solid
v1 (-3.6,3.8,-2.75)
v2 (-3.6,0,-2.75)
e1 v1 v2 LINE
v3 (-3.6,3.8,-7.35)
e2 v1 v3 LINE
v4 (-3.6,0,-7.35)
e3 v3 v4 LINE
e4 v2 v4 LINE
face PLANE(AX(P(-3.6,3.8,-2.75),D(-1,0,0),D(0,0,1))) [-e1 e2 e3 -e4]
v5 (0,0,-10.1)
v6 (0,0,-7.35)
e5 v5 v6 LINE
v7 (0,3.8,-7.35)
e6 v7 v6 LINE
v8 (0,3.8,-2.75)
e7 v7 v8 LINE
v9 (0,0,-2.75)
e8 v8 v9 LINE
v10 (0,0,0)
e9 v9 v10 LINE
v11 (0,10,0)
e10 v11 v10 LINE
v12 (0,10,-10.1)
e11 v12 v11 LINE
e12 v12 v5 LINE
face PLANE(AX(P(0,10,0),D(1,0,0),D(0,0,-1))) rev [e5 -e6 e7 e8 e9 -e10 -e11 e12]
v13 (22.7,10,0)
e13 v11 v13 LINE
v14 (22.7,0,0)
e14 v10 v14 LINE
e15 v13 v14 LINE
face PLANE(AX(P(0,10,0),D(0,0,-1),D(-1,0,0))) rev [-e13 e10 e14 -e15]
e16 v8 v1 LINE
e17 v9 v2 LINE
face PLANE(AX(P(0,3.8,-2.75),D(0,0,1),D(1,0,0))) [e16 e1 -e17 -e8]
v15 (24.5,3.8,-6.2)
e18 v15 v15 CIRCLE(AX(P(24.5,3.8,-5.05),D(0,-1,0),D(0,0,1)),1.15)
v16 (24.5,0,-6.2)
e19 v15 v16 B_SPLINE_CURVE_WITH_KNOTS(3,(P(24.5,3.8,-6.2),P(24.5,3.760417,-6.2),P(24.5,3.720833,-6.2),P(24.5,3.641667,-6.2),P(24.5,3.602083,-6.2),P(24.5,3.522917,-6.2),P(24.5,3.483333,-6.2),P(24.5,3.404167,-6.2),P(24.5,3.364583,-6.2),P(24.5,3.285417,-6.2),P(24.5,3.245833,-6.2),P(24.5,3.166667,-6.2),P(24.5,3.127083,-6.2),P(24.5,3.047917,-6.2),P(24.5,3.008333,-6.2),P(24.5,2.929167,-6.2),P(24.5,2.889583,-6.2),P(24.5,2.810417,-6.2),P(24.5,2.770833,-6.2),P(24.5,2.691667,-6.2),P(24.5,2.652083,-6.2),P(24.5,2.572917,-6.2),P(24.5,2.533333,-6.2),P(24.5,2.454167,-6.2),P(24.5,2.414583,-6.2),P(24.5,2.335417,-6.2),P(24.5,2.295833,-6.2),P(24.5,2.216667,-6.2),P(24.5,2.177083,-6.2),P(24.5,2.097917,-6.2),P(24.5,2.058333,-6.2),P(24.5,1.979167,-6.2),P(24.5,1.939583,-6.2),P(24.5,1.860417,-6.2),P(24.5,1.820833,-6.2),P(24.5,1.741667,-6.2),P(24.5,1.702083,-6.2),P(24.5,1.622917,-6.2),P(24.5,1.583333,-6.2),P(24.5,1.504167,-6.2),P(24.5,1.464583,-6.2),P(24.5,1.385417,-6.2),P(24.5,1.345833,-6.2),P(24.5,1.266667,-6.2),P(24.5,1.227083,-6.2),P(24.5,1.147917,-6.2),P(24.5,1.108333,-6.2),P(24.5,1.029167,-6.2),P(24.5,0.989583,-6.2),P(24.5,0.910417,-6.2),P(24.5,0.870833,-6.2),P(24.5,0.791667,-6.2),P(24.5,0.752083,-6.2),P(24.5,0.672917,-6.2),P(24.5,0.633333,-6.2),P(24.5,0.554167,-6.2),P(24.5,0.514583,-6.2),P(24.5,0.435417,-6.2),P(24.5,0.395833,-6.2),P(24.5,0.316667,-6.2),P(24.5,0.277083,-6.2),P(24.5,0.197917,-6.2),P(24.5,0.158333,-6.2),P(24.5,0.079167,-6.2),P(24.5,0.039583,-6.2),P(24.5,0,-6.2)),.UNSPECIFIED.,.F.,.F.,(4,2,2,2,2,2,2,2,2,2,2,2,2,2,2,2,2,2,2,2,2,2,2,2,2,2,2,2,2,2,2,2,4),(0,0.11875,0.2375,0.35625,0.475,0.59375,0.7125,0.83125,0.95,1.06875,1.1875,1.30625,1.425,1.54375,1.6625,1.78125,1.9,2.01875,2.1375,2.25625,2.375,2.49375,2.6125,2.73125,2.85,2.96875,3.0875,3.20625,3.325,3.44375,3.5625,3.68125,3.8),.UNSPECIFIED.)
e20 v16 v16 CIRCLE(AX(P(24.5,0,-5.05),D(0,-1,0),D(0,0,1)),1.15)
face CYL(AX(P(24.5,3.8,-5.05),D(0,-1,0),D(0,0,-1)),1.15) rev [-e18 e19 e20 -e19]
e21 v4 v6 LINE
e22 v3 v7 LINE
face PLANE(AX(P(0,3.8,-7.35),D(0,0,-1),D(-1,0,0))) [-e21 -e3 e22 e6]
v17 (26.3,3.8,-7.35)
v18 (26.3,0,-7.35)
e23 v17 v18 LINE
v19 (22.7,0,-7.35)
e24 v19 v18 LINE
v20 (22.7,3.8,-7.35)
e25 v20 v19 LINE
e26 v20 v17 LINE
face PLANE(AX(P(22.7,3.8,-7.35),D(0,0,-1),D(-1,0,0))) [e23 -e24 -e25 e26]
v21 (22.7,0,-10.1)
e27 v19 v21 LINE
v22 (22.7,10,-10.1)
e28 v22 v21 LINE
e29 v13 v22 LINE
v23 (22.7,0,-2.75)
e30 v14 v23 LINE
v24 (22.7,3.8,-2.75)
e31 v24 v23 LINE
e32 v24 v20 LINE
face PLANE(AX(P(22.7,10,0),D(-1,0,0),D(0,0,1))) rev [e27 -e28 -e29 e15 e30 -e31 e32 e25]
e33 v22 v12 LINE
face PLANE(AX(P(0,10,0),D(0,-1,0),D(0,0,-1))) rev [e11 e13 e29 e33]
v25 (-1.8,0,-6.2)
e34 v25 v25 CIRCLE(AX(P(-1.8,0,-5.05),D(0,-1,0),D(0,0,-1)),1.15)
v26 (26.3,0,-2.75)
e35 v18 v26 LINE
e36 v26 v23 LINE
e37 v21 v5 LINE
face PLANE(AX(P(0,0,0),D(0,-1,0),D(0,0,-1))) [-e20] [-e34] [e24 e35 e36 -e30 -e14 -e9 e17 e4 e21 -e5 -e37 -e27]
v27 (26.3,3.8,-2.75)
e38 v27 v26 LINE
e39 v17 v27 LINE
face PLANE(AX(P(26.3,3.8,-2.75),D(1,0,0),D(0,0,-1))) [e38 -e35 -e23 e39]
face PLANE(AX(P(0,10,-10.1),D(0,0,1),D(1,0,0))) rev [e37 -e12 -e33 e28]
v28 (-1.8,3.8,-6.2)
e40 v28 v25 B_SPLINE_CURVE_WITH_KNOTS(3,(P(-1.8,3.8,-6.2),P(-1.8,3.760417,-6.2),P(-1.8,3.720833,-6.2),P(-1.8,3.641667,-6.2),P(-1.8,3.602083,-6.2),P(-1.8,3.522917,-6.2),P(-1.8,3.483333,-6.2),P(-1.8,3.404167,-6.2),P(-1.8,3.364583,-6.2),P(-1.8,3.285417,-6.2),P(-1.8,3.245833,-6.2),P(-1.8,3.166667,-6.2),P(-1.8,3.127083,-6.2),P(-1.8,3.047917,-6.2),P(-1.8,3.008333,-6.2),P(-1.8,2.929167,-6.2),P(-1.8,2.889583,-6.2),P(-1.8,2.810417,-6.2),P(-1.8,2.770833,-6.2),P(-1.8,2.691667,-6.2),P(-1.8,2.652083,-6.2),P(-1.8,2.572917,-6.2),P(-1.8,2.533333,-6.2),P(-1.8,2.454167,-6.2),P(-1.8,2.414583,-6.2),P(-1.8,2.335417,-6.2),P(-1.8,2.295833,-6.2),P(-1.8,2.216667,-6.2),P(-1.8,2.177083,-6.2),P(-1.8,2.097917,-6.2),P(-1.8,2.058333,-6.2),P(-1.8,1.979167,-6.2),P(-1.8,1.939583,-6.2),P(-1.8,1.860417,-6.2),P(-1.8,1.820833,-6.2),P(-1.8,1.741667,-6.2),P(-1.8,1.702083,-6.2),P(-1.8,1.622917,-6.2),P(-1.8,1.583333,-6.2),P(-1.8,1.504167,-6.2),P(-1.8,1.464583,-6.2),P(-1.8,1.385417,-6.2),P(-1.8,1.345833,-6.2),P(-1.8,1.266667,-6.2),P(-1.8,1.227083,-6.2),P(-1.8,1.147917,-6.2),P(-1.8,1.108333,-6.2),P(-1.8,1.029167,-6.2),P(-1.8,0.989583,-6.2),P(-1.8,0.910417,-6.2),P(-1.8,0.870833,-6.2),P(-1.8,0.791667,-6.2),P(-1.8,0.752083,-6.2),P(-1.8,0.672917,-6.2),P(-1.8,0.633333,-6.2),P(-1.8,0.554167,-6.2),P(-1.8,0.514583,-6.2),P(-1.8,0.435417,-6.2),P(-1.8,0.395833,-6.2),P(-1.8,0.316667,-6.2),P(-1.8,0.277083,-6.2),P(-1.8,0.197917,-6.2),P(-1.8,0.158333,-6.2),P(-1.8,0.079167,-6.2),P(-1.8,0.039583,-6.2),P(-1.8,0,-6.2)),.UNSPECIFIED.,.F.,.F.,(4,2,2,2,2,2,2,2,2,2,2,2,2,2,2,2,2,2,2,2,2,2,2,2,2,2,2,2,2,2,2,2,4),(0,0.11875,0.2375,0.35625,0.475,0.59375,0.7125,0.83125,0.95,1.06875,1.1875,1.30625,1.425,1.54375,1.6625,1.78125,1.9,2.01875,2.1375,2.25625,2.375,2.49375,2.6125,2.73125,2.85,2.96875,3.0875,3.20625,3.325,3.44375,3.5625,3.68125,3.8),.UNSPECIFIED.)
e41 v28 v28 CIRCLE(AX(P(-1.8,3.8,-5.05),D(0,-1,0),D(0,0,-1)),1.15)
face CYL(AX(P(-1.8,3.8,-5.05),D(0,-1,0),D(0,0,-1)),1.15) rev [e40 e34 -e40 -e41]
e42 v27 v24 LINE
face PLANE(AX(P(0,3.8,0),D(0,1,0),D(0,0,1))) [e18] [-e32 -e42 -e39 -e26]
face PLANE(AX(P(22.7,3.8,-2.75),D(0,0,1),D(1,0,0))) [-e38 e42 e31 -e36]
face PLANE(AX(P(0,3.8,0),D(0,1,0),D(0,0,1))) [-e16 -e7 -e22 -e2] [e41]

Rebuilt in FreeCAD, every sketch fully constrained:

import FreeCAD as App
import Part
import Sketcher
from FreeCAD import Vector


def add_polygon(sketch, points):
    """Adds a closed chain of lines whose ends are joined by coincident constraints."""
    first, n = sketch.GeometryCount, len(points)
    for a, b in zip(points, points[1:] + points[:1]):
        sketch.addGeometry(Part.LineSegment(App.Vector(*a, 0), App.Vector(*b, 0)), False)
    for i in range(n):
        sketch.addConstraint(Sketcher.Constraint("Coincident", first + i, 2, first + (i + 1) % n, 1))

doc = App.newDocument("Part")
body = doc.addObject("PartDesign::Body", "Body")

sketch1 = body.newObject("Sketcher::SketchObject", "Sketch")
sketch1.AttachmentSupport = (doc.getObject("XZ_Plane"), [""])
sketch1.MapMode = "FlatFace"
add_polygon(sketch1, [(0, -10.1), (0, 0), (22.7, 0), (22.7, -10.1)])
sketch1.addConstraint(Sketcher.Constraint("Vertical", 0))
sketch1.addConstraint(Sketcher.Constraint("Horizontal", 1))
sketch1.addConstraint(Sketcher.Constraint("Vertical", 2))
sketch1.addConstraint(Sketcher.Constraint("Horizontal", 3))
sketch1.addConstraint(Sketcher.Constraint("Coincident", 0, 2, -1, 1))
sketch1.addConstraint(Sketcher.Constraint("DistanceX", 1, 1, 1, 2, 22.7))
sketch1.addConstraint(Sketcher.Constraint("DistanceY", 0, 1, 0, 2, 10.1))
pad1 = body.newObject("PartDesign::Pad", "Pad")
pad1.Profile = sketch1
pad1.Length = 10
pad1.Reversed = True

sketch2 = body.newObject("Sketcher::SketchObject", "Sketch001")
sketch2.AttachmentSupport = (doc.getObject("XZ_Plane"), [""])
sketch2.MapMode = "FlatFace"
add_polygon(sketch2, [(-3.6, -2.75), (-3.6, -7.35), (0, -7.35), (0, -2.75)])
sketch2.addGeometry(Part.Circle(Vector(-1.8, -5.05, 0), Vector(0, 0, 1), 1.15), False)
add_polygon(sketch2, [(22.7, -2.75), (22.7, -7.35), (26.3, -7.35), (26.3, -2.75)])
sketch2.addGeometry(Part.Circle(Vector(24.5, -5.05, 0), Vector(0, 0, 1), 1.15), False)
sketch2.addConstraint(Sketcher.Constraint("Vertical", 0))
sketch2.addConstraint(Sketcher.Constraint("Horizontal", 1))
sketch2.addConstraint(Sketcher.Constraint("Vertical", 2))
sketch2.addConstraint(Sketcher.Constraint("Horizontal", 3))
sketch2.addConstraint(Sketcher.Constraint("Vertical", 5))
sketch2.addConstraint(Sketcher.Constraint("Horizontal", 6))
sketch2.addConstraint(Sketcher.Constraint("Vertical", 7))
sketch2.addConstraint(Sketcher.Constraint("Horizontal", 8))
sketch2.addConstraint(Sketcher.Constraint("Equal", 4, 9))
sketch2.addConstraint(Sketcher.Constraint("PointOnObject", 1, 2, -2))
sketch2.addConstraint(Sketcher.Constraint("Horizontal", 4, 3, 9, 3))
sketch2.addConstraint(Sketcher.Constraint("Horizontal", 1, 2, 5, 2))
sketch2.addConstraint(Sketcher.Constraint("Horizontal", 3, 2, 7, 2))
sketch2.addConstraint(Sketcher.Constraint("Equal", 3, 6))
sketch2.addConstraint(Sketcher.Constraint("Diameter", 4, 2.3))
sketch2.addConstraint(Sketcher.Constraint("DistanceX", 1, 1, 1, 2, 3.6))
sketch2.addConstraint(Sketcher.Constraint("DistanceY", 0, 2, 0, 1, 4.6))
sketch2.addConstraint(Sketcher.Constraint("DistanceX", 4, 3, -1, 1, 1.8))
sketch2.addConstraint(Sketcher.Constraint("DistanceX", -1, 1, 9, 3, 24.5))
sketch2.addConstraint(Sketcher.Constraint("DistanceX", -1, 1, 5, 2, 22.7))
sketch2.addConstraint(Sketcher.Constraint("DistanceY", 0, 2, 4, 3, 2.3))
sketch2.addConstraint(Sketcher.Constraint("DistanceY", 4, 3, -1, 1, 5.05))
pad2 = body.newObject("PartDesign::Pad", "Pad001")
pad2.Profile = sketch2
pad2.Length = 3.8
pad2.Reversed = True

doc.recompute()
